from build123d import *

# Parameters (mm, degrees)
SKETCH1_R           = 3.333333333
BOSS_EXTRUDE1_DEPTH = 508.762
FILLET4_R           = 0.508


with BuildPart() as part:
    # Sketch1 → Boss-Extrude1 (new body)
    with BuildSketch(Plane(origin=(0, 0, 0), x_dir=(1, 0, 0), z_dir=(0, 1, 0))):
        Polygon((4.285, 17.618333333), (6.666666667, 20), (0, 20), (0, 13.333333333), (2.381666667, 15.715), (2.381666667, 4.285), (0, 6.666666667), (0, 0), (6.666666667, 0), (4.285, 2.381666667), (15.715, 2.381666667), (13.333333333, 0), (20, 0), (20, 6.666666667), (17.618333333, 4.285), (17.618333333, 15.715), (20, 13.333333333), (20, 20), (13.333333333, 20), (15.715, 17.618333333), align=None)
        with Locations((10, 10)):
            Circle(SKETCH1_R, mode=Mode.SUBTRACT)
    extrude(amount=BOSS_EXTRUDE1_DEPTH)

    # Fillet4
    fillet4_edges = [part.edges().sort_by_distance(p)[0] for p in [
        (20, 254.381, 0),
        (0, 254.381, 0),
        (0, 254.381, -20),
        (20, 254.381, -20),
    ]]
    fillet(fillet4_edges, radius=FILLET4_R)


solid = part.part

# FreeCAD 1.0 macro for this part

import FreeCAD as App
import Part
import Sketcher

V = App.Vector
Q = App.Units.Quantity


def edges_at(feature, points):
    """Names of the edges that pass closest to the given points."""
    edges = feature.Shape.Edges
    near = lambda p: min(range(len(edges)), key=lambda i: edges[i].distToShape(Part.Vertex(*p))[0])
    return sorted({f"Edge{near(p) + 1}" for p in points})

doc = App.newDocument("Part")
body = doc.addObject("PartDesign::Body", "Body")

# Sketch on XZ plane
sketch1 = body.newObject("Sketcher::SketchObject", "Sketch")
sketch1.AttachmentSupport = (doc.getObject("XZ_Plane"), [""])
sketch1.MapMode = "FlatFace"
sketch1.addGeometry(Part.LineSegment(V(4.285, -17.618333, 0), V(6.666667, -20, 0)), False)
sketch1.addGeometry(Part.LineSegment(V(6.666667, -20, 0), V(0, -20, 0)), False)
sketch1.addGeometry(Part.LineSegment(V(0, -20, 0), V(0, -13.333333, 0)), False)
sketch1.addGeometry(Part.LineSegment(V(0, -13.333333, 0), V(2.381667, -15.715, 0)), False)
sketch1.addGeometry(Part.LineSegment(V(2.381667, -15.715, 0), V(2.381667, -4.285, 0)), False)
sketch1.addGeometry(Part.LineSegment(V(2.381667, -4.285, 0), V(0, -6.666667, 0)), False)
sketch1.addGeometry(Part.LineSegment(V(0, -6.666667, 0), V(0, 0, 0)), False)
sketch1.addGeometry(Part.LineSegment(V(0, 0, 0), V(6.666667, 0, 0)), False)
sketch1.addGeometry(Part.LineSegment(V(6.666667, 0, 0), V(4.285, -2.381667, 0)), False)
sketch1.addGeometry(Part.LineSegment(V(4.285, -2.381667, 0), V(15.715, -2.381667, 0)), False)
sketch1.addGeometry(Part.LineSegment(V(15.715, -2.381667, 0), V(13.333333, 0, 0)), False)
sketch1.addGeometry(Part.LineSegment(V(13.333333, 0, 0), V(20, 0, 0)), False)
sketch1.addGeometry(Part.LineSegment(V(20, 0, 0), V(20, -6.666667, 0)), False)
sketch1.addGeometry(Part.LineSegment(V(20, -6.666667, 0), V(17.618333, -4.285, 0)), False)
sketch1.addGeometry(Part.LineSegment(V(17.618333, -4.285, 0), V(17.618333, -15.715, 0)), False)
sketch1.addGeometry(Part.LineSegment(V(17.618333, -15.715, 0), V(20, -13.333333, 0)), False)
sketch1.addGeometry(Part.LineSegment(V(20, -13.333333, 0), V(20, -20, 0)), False)
sketch1.addGeometry(Part.LineSegment(V(20, -20, 0), V(13.333333, -20, 0)), False)
sketch1.addGeometry(Part.LineSegment(V(13.333333, -20, 0), V(15.715, -17.618333, 0)), False)
sketch1.addGeometry(Part.LineSegment(V(15.715, -17.618333, 0), V(4.285, -17.618333, 0)), False)
sketch1.addGeometry(Part.Circle(V(10, -10, 0), V(0, 0, 1), 3.333333), False)
sketch1.addConstraint(Sketcher.Constraint("Coincident", 0, 2, 1, 1))
sketch1.addConstraint(Sketcher.Constraint("Coincident", 1, 2, 2, 1))
sketch1.addConstraint(Sketcher.Constraint("Coincident", 2, 2, 3, 1))
sketch1.addConstraint(Sketcher.Constraint("Coincident", 3, 2, 4, 1))
sketch1.addConstraint(Sketcher.Constraint("Coincident", 4, 2, 5, 1))
sketch1.addConstraint(Sketcher.Constraint("Coincident", 5, 2, 6, 1))
sketch1.addConstraint(Sketcher.Constraint("Coincident", 6, 2, 7, 1))
sketch1.addConstraint(Sketcher.Constraint("Coincident", 7, 2, 8, 1))
sketch1.addConstraint(Sketcher.Constraint("Coincident", 8, 2, 9, 1))
sketch1.addConstraint(Sketcher.Constraint("Coincident", 9, 2, 10, 1))
sketch1.addConstraint(Sketcher.Constraint("Coincident", 10, 2, 11, 1))
sketch1.addConstraint(Sketcher.Constraint("Coincident", 11, 2, 12, 1))
sketch1.addConstraint(Sketcher.Constraint("Coincident", 12, 2, 13, 1))
sketch1.addConstraint(Sketcher.Constraint("Coincident", 13, 2, 14, 1))
sketch1.addConstraint(Sketcher.Constraint("Coincident", 14, 2, 15, 1))
sketch1.addConstraint(Sketcher.Constraint("Coincident", 15, 2, 16, 1))
sketch1.addConstraint(Sketcher.Constraint("Coincident", 16, 2, 17, 1))
sketch1.addConstraint(Sketcher.Constraint("Coincident", 17, 2, 18, 1))
sketch1.addConstraint(Sketcher.Constraint("Coincident", 18, 2, 19, 1))
sketch1.addConstraint(Sketcher.Constraint("Coincident", 19, 2, 0, 1))
sketch1.addConstraint(Sketcher.Constraint("Horizontal", 1))
sketch1.addConstraint(Sketcher.Constraint("Vertical", 2))
sketch1.addConstraint(Sketcher.Constraint("Vertical", 4))
sketch1.addConstraint(Sketcher.Constraint("Vertical", 6))
sketch1.addConstraint(Sketcher.Constraint("Horizontal", 7))
sketch1.addConstraint(Sketcher.Constraint("Horizontal", 9))
sketch1.addConstraint(Sketcher.Constraint("Horizontal", 11))
sketch1.addConstraint(Sketcher.Constraint("Vertical", 12))
sketch1.addConstraint(Sketcher.Constraint("Vertical", 14))
sketch1.addConstraint(Sketcher.Constraint("Vertical", 16))
sketch1.addConstraint(Sketcher.Constraint("Horizontal", 17))
sketch1.addConstraint(Sketcher.Constraint("Horizontal", 19))
sketch1.addConstraint(Sketcher.Constraint("Coincident", 6, 2, -1, 1))
sketch1.addConstraint(Sketcher.Constraint("PointOnObject", 1, 2, -2))
sketch1.addConstraint(Sketcher.Constraint("PointOnObject", 10, 2, -1))
sketch1.addConstraint(Sketcher.Constraint("Parallel", 0, 3))
sketch1.addConstraint(Sketcher.Constraint("Perpendicular", 3, 5))
sketch1.addConstraint(Sketcher.Constraint("Parallel", 5, 8))
sketch1.addConstraint(Sketcher.Constraint("Perpendicular", 8, 10))
sketch1.addConstraint(Sketcher.Constraint("Parallel", 10, 13))
sketch1.addConstraint(Sketcher.Constraint("Perpendicular", 13, 15))
sketch1.addConstraint(Sketcher.Constraint("Parallel", 15, 18))
sketch1.addConstraint(Sketcher.Constraint("Horizontal", 5, 2, 12, 2))
sketch1.addConstraint(Sketcher.Constraint("Horizontal", 4, 2, 13, 2))
sketch1.addConstraint(Sketcher.Constraint("Horizontal", 3, 2, 14, 2))
sketch1.addConstraint(Sketcher.Constraint("Horizontal", 2, 2, 15, 2))
sketch1.addConstraint(Sketcher.Constraint("Horizontal", 1, 2, 16, 2))
sketch1.addConstraint(Sketcher.Constraint("Vertical", 0, 2, 7, 2))
sketch1.addConstraint(Sketcher.Constraint("Vertical", 12, 2, 15, 2))
sketch1.addConstraint(Sketcher.Constraint("Vertical", 10, 2, 17, 2))
sketch1.addConstraint(Sketcher.Constraint("Vertical", 9, 2, 18, 2))
sketch1.addConstraint(Sketcher.Constraint("Equal", 7, 11))
sketch1.addConstraint(Sketcher.Constraint("Equal", 17, 2))
sketch1.addConstraint(Sketcher.Constraint("Equal", 19, 4))
sketch1.addConstraint(Sketcher.Constraint("Equal", 2, 6))
sketch1.addConstraint(Sketcher.Constraint("Equal", 0, 3))
sketch1.addConstraint(Sketcher.Constraint("DistanceX", 9, 1, 9, 2, Q("0.45 in")))
sketch1.addConstraint(Sketcher.Constraint("DistanceY", 3, 2, 20, 3, Q("0.225 in")))
sketch1.addConstraint(Sketcher.Constraint("DistanceX", 8, 2, 20, 3, Q("0.225 in")))
sketch1.addConstraint(Sketcher.Constraint("Diameter", 20, Q("6.666667 mm")))
sketch1.addConstraint(Sketcher.Constraint("DistanceX", -1, 1, 20, 3, Q("10 mm")))
sketch1.addConstraint(Sketcher.Constraint("DistanceX", 1, 2, 1, 1, Q("6.666667 mm")))
pad1 = body.newObject("PartDesign::Pad", "Pad")
pad1.Profile = sketch1
pad1.Length = Q("20.03 in")
pad1.Reversed = True
doc.recompute()

fillet = body.newObject("PartDesign::Fillet", "Fillet")
fillet.Base = (pad1, edges_at(pad1, [
    (20, 254.381, 0),
    (0, 254.381, 0),
    (0, 254.381, -20),
    (20, 254.381, -20),
]))
fillet.Radius = Q("0.02 in")

doc.recompute()
